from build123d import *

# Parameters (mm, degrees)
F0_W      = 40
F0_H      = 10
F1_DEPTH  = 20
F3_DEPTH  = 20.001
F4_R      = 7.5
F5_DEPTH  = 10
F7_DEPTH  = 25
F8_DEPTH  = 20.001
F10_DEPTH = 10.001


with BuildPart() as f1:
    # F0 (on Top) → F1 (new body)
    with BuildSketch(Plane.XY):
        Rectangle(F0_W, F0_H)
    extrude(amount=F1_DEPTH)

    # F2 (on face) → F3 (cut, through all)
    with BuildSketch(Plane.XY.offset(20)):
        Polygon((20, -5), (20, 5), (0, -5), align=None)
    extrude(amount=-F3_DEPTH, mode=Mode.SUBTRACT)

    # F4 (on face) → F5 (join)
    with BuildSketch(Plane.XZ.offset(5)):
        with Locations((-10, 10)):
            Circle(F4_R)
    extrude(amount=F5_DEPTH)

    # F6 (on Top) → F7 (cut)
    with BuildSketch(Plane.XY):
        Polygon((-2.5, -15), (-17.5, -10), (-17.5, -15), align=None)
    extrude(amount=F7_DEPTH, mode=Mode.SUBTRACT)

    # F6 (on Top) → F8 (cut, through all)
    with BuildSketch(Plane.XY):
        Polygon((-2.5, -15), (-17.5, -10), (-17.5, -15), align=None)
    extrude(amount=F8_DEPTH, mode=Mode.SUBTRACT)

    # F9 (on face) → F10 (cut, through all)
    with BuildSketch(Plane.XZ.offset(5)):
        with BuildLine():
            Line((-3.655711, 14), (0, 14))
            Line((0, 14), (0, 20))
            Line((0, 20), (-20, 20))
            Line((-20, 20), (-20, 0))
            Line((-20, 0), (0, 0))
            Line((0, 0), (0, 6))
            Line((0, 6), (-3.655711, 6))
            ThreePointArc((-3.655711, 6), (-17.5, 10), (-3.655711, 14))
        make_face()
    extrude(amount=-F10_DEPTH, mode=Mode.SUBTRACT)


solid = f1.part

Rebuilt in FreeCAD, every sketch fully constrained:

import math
import FreeCAD as App
import Part
import Sketcher

V = App.Vector
Q = App.Units.Quantity


def add_polygon(sketch, points):
    """Adds a closed chain of lines whose ends are joined by coincident constraints."""
    first, n = sketch.GeometryCount, len(points)
    for a, b in zip(points, points[1:] + points[:1]):
        sketch.addGeometry(Part.LineSegment(App.Vector(*a, 0), App.Vector(*b, 0)), False)
    for i in range(n):
        sketch.addConstraint(Sketcher.Constraint("Coincident", first + i, 2, first + (i + 1) % n, 1))

doc = App.newDocument("Part")
params = doc.addObject("Spreadsheet::Sheet", "Params")
for row, (alias, value) in enumerate([
    ("sketch1_width", "40 mm"),
    ("sketch1_height", "10 mm"),
    ("pad1_length", "20 mm"),
    ("sketch2_width", "20 mm"),
    ("sketch2_height", "10 mm"),
    ("sketch3_diameter", "15 mm"),
    ("pad2_length", "10 mm"),
    ("sketch4_width", "15 mm"),
    ("sketch4_height", "5 mm"),
    ("pocket2_length", "25 mm"),
    ("sketch5_width", "15 mm"),
    ("sketch5_height", "5 mm"),
    ("sketch6_radius", "7.5 mm"),
    ("sketch6_width", "20 mm"),
    ("sketch6_height", "6 mm"),
], start=1):
    params.set(f"A{row}", alias)
    params.set(f"B{row}", "=" + value)
    params.setAlias(f"B{row}", alias)

body = doc.addObject("PartDesign::Body", "Body")

sketch1 = body.newObject("Sketcher::SketchObject", "Sketch")
sketch1.AttachmentSupport = (doc.getObject("XY_Plane"), [""])
sketch1.MapMode = "FlatFace"
add_polygon(sketch1, [(-20, 5), (-20, -5), (20, -5), (20, 5)])
sketch1.addConstraint(Sketcher.Constraint("Vertical", 0))
sketch1.addConstraint(Sketcher.Constraint("Horizontal", 1))
sketch1.addConstraint(Sketcher.Constraint("Vertical", 2))
sketch1.addConstraint(Sketcher.Constraint("Horizontal", 3))
sketch1.addConstraint(Sketcher.Constraint("Symmetric", 0, 2, 2, 2, -1, 1))
sketch1.addConstraint(Sketcher.Constraint("DistanceX", 1, 1, 1, 2, Q("40 mm")))
sketch1.addConstraint(Sketcher.Constraint("DistanceY", 0, 2, 0, 1, Q("10 mm")))
sketch1.setExpression("Constraints[9]", "Params.sketch1_width")
sketch1.setExpression("Constraints[10]", "Params.sketch1_height")
pad1 = body.newObject("PartDesign::Pad", "Pad")
pad1.Profile = sketch1
pad1.setExpression("Length", "Params.pad1_length")

sketch2 = body.newObject("Sketcher::SketchObject", "Sketch001")
sketch2.AttachmentSupport = (doc.getObject("XY_Plane"), [""])
sketch2.MapMode = "FlatFace"
sketch2.AttachmentOffset = App.Placement(V(0, 0, 20), App.Rotation())
add_polygon(sketch2, [(20, -5), (20, 5), (0, -5)])
sketch2.addConstraint(Sketcher.Constraint("Vertical", 0))
sketch2.addConstraint(Sketcher.Constraint("Horizontal", 2))
sketch2.addConstraint(Sketcher.Constraint("PointOnObject", 1, 2, -2))
sketch2.addConstraint(Sketcher.Constraint("DistanceX", 2, 1, 2, 2, Q("20 mm")))
sketch2.addConstraint(Sketcher.Constraint("DistanceY", 0, 1, 0, 2, Q("10 mm")))
sketch2.addConstraint(Sketcher.Constraint("DistanceY", -1, 1, 0, 2, Q("5 mm")))
sketch2.setExpression("Constraints[6]", "Params.sketch2_width")
sketch2.setExpression("Constraints[7]", "Params.sketch2_height")
pocket1 = body.newObject("PartDesign::Pocket", "Pocket")
pocket1.Profile = sketch2
pocket1.Type = "ThroughAll"

sketch3 = body.newObject("Sketcher::SketchObject", "Sketch002")
sketch3.AttachmentSupport = (doc.getObject("XZ_Plane"), [""])
sketch3.MapMode = "FlatFace"
sketch3.AttachmentOffset = App.Placement(V(0, 0, 5), App.Rotation())
sketch3.addGeometry(Part.Circle(V(-10, 10, 0), V(0, 0, 1), 7.5), False)
sketch3.addConstraint(Sketcher.Constraint("Diameter", 0, Q("15 mm")))
sketch3.addConstraint(Sketcher.Constraint("DistanceX", 0, 3, -1, 1, Q("10 mm")))
sketch3.addConstraint(Sketcher.Constraint("DistanceY", -1, 1, 0, 3, Q("10 mm")))
sketch3.setExpression("Constraints[0]", "Params.sketch3_diameter")
pad2 = body.newObject("PartDesign::Pad", "Pad001")
pad2.Profile = sketch3
pad2.setExpression("Length", "Params.pad2_length")

sketch4 = body.newObject("Sketcher::SketchObject", "Sketch003")
sketch4.AttachmentSupport = (doc.getObject("XY_Plane"), [""])
sketch4.MapMode = "FlatFace"
add_polygon(sketch4, [(-2.5, -15), (-17.5, -10), (-17.5, -15)])
sketch4.addConstraint(Sketcher.Constraint("Vertical", 1))
sketch4.addConstraint(Sketcher.Constraint("Horizontal", 2))
sketch4.addConstraint(Sketcher.Constraint("DistanceX", 2, 1, 2, 2, Q("15 mm")))
sketch4.addConstraint(Sketcher.Constraint("DistanceY", 1, 2, 1, 1, Q("5 mm")))
sketch4.addConstraint(Sketcher.Constraint("DistanceY", 0, 2, -1, 1, Q("10 mm")))
sketch4.addConstraint(Sketcher.Constraint("DistanceX", 0, 2, -1, 1, Q("17.5 mm")))
sketch4.setExpression("Constraints[5]", "Params.sketch4_width")
sketch4.setExpression("Constraints[6]", "Params.sketch4_height")
pocket2 = body.newObject("PartDesign::Pocket", "Pocket001")
pocket2.Profile = sketch4
pocket2.setExpression("Length", "Params.pocket2_length")
pocket2.Reversed = True

sketch5 = body.newObject("Sketcher::SketchObject", "Sketch004")
sketch5.AttachmentSupport = (doc.getObject("XY_Plane"), [""])
sketch5.MapMode = "FlatFace"
add_polygon(sketch5, [(-2.5, -15), (-17.5, -10), (-17.5, -15)])
sketch5.addConstraint(Sketcher.Constraint("Vertical", 1))
sketch5.addConstraint(Sketcher.Constraint("Horizontal", 2))
sketch5.addConstraint(Sketcher.Constraint("DistanceX", 2, 1, 2, 2, Q("15 mm")))
sketch5.addConstraint(Sketcher.Constraint("DistanceY", 1, 2, 1, 1, Q("5 mm")))
sketch5.addConstraint(Sketcher.Constraint("DistanceY", 0, 2, -1, 1, Q("10 mm")))
sketch5.addConstraint(Sketcher.Constraint("DistanceX", 0, 2, -1, 1, Q("17.5 mm")))
sketch5.setExpression("Constraints[5]", "Params.sketch5_width")
sketch5.setExpression("Constraints[6]", "Params.sketch5_height")
pocket3 = body.newObject("PartDesign::Pocket", "Pocket002")
pocket3.Profile = sketch5
pocket3.Type = "ThroughAll"
pocket3.Reversed = True

sketch6 = body.newObject("Sketcher::SketchObject", "Sketch005")
sketch6.AttachmentSupport = (doc.getObject("XZ_Plane"), [""])
sketch6.MapMode = "FlatFace"
sketch6.AttachmentOffset = App.Placement(V(0, 0, 5), App.Rotation())
sketch6.addGeometry(Part.LineSegment(V(-3.655711, 14, 0), V(0, 14, 0)), False)
sketch6.addGeometry(Part.LineSegment(V(0, 14, 0), V(0, 20, 0)), False)
sketch6.addGeometry(Part.LineSegment(V(0, 20, 0), V(-20, 20, 0)), False)
sketch6.addGeometry(Part.LineSegment(V(-20, 20, 0), V(-20, 0, 0)), False)
sketch6.addGeometry(Part.LineSegment(V(-20, 0, 0), V(0, 0, 0)), False)
sketch6.addGeometry(Part.LineSegment(V(0, 0, 0), V(0, 6, 0)), False)
sketch6.addGeometry(Part.LineSegment(V(0, 6, 0), V(-3.655711, 6, 0)), False)
sketch6.addGeometry(Part.ArcOfCircle(Part.Circle(V(-10, 10, 0), V(0, 0, 1), 7.5), math.radians(32.230952), math.radians(327.769048)), False)
sketch6.addConstraint(Sketcher.Constraint("Coincident", 0, 2, 1, 1))
sketch6.addConstraint(Sketcher.Constraint("Coincident", 1, 2, 2, 1))
sketch6.addConstraint(Sketcher.Constraint("Coincident", 2, 2, 3, 1))
sketch6.addConstraint(Sketcher.Constraint("Coincident", 3, 2, 4, 1))
sketch6.addConstraint(Sketcher.Constraint("Coincident", 4, 2, 5, 1))
sketch6.addConstraint(Sketcher.Constraint("Coincident", 5, 2, 6, 1))
sketch6.addConstraint(Sketcher.Constraint("Coincident", 6, 2, 7, 2))
sketch6.addConstraint(Sketcher.Constraint("Coincident", 7, 1, 0, 1))
sketch6.addConstraint(Sketcher.Constraint("Horizontal", 0))
sketch6.addConstraint(Sketcher.Constraint("Vertical", 1))
sketch6.addConstraint(Sketcher.Constraint("Horizontal", 2))
sketch6.addConstraint(Sketcher.Constraint("Vertical", 3))
sketch6.addConstraint(Sketcher.Constraint("Horizontal", 4))
sketch6.addConstraint(Sketcher.Constraint("Vertical", 5))
sketch6.addConstraint(Sketcher.Constraint("Horizontal", 6))
sketch6.addConstraint(Sketcher.Constraint("Coincident", 4, 2, -1, 1))
sketch6.addConstraint(Sketcher.Constraint("PointOnObject", 0, 2, -2))
sketch6.addConstraint(Sketcher.Constraint("Vertical", 6, 2, 7, 1))
sketch6.addConstraint(Sketcher.Constraint("Equal", 4, 3))
sketch6.addConstraint(Sketcher.Constraint("Equal", 1, 5))
sketch6.addConstraint(Sketcher.Constraint("Radius", 7, Q("7.5 mm")))
sketch6.addConstraint(Sketcher.Constraint("DistanceX", 2, 2, 2, 1, Q("20 mm")))
sketch6.addConstraint(Sketcher.Constraint("DistanceY", 1, 1, 1, 2, Q("6 mm")))
sketch6.addConstraint(Sketcher.Constraint("DistanceX", 7, 3, -1, 1, Q("10 mm")))
sketch6.setExpression("Constraints[20]", "Params.sketch6_radius")
sketch6.setExpression("Constraints[21]", "Params.sketch6_width")
sketch6.setExpression("Constraints[22]", "Params.sketch6_height")
pocket4 = body.newObject("PartDesign::Pocket", "Pocket003")
pocket4.Profile = sketch6
pocket4.Type = "ThroughAll"

doc.recompute()
